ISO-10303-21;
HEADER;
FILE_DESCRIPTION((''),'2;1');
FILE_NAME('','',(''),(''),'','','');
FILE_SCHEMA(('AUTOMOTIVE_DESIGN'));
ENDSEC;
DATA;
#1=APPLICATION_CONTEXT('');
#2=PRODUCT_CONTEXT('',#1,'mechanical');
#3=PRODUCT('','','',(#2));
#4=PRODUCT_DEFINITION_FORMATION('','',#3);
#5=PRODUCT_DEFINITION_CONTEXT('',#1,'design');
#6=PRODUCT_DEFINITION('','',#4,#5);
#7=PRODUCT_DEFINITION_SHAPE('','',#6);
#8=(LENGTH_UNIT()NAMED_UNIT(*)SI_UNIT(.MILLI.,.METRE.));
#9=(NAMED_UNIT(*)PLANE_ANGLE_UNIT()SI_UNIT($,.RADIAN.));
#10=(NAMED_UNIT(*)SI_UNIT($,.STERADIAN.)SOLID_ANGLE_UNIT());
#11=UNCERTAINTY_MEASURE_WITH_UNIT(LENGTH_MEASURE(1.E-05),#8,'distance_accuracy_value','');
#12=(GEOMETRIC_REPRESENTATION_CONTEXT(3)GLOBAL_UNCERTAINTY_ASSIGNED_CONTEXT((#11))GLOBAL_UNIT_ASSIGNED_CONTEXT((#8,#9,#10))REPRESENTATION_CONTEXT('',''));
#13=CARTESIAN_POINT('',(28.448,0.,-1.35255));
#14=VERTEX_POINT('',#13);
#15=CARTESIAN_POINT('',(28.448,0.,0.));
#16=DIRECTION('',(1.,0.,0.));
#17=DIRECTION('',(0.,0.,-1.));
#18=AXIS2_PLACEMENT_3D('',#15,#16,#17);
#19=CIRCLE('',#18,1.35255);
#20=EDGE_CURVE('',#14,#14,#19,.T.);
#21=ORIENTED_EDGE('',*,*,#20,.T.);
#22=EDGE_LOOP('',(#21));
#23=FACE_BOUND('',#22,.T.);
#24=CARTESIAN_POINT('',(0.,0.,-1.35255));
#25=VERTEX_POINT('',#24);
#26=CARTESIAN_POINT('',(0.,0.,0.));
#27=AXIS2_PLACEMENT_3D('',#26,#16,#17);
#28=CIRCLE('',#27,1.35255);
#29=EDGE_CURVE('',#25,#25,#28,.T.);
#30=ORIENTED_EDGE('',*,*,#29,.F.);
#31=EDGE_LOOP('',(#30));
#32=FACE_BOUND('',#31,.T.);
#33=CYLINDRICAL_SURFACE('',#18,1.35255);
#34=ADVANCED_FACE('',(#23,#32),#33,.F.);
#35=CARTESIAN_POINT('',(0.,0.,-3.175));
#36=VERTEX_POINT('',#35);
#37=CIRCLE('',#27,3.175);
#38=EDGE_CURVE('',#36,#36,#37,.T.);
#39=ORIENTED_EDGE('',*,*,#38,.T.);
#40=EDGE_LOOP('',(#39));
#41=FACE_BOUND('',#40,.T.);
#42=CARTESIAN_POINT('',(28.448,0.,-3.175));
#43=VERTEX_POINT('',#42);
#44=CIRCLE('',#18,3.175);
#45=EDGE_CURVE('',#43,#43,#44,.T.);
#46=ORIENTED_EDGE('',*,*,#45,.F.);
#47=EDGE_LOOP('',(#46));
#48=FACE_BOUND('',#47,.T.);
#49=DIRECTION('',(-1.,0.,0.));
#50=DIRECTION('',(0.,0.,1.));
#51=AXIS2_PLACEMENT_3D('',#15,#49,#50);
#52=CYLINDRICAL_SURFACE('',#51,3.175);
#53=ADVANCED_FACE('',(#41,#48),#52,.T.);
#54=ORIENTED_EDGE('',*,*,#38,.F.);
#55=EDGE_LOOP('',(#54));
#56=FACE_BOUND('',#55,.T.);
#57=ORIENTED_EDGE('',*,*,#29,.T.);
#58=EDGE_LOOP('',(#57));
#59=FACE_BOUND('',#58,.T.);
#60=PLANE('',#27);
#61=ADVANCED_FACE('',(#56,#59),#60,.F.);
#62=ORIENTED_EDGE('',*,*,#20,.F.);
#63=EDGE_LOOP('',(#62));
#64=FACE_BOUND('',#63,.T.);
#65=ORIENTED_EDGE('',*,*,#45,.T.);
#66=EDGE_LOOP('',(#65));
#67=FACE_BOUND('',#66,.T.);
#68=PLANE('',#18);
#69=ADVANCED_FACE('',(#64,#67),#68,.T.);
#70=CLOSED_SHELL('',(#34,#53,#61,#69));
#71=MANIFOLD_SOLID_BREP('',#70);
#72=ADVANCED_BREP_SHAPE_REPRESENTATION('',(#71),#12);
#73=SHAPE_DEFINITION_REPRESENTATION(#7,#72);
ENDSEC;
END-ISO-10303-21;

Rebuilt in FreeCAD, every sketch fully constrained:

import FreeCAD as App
import Part
import Sketcher
Q = App.Units.Quantity

doc = App.newDocument("Part")
body = doc.addObject("PartDesign::Body", "Body")

# Sketch on YZ plane
sketch1 = body.newObject("Sketcher::SketchObject", "Sketch")
sketch1.AttachmentSupport = (doc.getObject("YZ_Plane"), [""])
sketch1.MapMode = "FlatFace"
sketch1.addGeometry(Part.Circle(App.Vector(0, 0, 0), App.Vector(0, 0, 1), 3.2), False)
sketch1.addConstraint([
    Sketcher.Constraint("Coincident", 0, 3, -1, 1),
    Sketcher.Constraint("Diameter", 0, Q("0.25 in")),
])
pad1 = body.newObject("PartDesign::Pad", "Pad")
pad1.Profile = sketch1
pad1.Length = Q("1.12 in")

# Sketch on YZ plane
sketch2 = body.newObject("Sketcher::SketchObject", "Sketch001")
sketch2.AttachmentSupport = (doc.getObject("YZ_Plane"), [""])
sketch2.MapMode = "FlatFace"
sketch2.AttachmentOffset = App.Placement(App.Vector(0, 0, 1.12 * 25.4), App.Rotation())
sketch2.addGeometry(Part.Circle(App.Vector(0, 0, 0), App.Vector(0, 0, 1), 1.4), False)
sketch2.addConstraint([
    Sketcher.Constraint("Coincident", 0, 3, -1, 1),
    Sketcher.Constraint("Diameter", 0, Q("0.1065 in")),
])
doc.recompute()
hole = body.newObject("PartDesign::Hole", "Hole")
hole.Profile = sketch2
hole.ThreadType = "None"
hole.Diameter = Q("0.1065 in")
hole.DepthType = "ThroughAll"

doc.recompute()
